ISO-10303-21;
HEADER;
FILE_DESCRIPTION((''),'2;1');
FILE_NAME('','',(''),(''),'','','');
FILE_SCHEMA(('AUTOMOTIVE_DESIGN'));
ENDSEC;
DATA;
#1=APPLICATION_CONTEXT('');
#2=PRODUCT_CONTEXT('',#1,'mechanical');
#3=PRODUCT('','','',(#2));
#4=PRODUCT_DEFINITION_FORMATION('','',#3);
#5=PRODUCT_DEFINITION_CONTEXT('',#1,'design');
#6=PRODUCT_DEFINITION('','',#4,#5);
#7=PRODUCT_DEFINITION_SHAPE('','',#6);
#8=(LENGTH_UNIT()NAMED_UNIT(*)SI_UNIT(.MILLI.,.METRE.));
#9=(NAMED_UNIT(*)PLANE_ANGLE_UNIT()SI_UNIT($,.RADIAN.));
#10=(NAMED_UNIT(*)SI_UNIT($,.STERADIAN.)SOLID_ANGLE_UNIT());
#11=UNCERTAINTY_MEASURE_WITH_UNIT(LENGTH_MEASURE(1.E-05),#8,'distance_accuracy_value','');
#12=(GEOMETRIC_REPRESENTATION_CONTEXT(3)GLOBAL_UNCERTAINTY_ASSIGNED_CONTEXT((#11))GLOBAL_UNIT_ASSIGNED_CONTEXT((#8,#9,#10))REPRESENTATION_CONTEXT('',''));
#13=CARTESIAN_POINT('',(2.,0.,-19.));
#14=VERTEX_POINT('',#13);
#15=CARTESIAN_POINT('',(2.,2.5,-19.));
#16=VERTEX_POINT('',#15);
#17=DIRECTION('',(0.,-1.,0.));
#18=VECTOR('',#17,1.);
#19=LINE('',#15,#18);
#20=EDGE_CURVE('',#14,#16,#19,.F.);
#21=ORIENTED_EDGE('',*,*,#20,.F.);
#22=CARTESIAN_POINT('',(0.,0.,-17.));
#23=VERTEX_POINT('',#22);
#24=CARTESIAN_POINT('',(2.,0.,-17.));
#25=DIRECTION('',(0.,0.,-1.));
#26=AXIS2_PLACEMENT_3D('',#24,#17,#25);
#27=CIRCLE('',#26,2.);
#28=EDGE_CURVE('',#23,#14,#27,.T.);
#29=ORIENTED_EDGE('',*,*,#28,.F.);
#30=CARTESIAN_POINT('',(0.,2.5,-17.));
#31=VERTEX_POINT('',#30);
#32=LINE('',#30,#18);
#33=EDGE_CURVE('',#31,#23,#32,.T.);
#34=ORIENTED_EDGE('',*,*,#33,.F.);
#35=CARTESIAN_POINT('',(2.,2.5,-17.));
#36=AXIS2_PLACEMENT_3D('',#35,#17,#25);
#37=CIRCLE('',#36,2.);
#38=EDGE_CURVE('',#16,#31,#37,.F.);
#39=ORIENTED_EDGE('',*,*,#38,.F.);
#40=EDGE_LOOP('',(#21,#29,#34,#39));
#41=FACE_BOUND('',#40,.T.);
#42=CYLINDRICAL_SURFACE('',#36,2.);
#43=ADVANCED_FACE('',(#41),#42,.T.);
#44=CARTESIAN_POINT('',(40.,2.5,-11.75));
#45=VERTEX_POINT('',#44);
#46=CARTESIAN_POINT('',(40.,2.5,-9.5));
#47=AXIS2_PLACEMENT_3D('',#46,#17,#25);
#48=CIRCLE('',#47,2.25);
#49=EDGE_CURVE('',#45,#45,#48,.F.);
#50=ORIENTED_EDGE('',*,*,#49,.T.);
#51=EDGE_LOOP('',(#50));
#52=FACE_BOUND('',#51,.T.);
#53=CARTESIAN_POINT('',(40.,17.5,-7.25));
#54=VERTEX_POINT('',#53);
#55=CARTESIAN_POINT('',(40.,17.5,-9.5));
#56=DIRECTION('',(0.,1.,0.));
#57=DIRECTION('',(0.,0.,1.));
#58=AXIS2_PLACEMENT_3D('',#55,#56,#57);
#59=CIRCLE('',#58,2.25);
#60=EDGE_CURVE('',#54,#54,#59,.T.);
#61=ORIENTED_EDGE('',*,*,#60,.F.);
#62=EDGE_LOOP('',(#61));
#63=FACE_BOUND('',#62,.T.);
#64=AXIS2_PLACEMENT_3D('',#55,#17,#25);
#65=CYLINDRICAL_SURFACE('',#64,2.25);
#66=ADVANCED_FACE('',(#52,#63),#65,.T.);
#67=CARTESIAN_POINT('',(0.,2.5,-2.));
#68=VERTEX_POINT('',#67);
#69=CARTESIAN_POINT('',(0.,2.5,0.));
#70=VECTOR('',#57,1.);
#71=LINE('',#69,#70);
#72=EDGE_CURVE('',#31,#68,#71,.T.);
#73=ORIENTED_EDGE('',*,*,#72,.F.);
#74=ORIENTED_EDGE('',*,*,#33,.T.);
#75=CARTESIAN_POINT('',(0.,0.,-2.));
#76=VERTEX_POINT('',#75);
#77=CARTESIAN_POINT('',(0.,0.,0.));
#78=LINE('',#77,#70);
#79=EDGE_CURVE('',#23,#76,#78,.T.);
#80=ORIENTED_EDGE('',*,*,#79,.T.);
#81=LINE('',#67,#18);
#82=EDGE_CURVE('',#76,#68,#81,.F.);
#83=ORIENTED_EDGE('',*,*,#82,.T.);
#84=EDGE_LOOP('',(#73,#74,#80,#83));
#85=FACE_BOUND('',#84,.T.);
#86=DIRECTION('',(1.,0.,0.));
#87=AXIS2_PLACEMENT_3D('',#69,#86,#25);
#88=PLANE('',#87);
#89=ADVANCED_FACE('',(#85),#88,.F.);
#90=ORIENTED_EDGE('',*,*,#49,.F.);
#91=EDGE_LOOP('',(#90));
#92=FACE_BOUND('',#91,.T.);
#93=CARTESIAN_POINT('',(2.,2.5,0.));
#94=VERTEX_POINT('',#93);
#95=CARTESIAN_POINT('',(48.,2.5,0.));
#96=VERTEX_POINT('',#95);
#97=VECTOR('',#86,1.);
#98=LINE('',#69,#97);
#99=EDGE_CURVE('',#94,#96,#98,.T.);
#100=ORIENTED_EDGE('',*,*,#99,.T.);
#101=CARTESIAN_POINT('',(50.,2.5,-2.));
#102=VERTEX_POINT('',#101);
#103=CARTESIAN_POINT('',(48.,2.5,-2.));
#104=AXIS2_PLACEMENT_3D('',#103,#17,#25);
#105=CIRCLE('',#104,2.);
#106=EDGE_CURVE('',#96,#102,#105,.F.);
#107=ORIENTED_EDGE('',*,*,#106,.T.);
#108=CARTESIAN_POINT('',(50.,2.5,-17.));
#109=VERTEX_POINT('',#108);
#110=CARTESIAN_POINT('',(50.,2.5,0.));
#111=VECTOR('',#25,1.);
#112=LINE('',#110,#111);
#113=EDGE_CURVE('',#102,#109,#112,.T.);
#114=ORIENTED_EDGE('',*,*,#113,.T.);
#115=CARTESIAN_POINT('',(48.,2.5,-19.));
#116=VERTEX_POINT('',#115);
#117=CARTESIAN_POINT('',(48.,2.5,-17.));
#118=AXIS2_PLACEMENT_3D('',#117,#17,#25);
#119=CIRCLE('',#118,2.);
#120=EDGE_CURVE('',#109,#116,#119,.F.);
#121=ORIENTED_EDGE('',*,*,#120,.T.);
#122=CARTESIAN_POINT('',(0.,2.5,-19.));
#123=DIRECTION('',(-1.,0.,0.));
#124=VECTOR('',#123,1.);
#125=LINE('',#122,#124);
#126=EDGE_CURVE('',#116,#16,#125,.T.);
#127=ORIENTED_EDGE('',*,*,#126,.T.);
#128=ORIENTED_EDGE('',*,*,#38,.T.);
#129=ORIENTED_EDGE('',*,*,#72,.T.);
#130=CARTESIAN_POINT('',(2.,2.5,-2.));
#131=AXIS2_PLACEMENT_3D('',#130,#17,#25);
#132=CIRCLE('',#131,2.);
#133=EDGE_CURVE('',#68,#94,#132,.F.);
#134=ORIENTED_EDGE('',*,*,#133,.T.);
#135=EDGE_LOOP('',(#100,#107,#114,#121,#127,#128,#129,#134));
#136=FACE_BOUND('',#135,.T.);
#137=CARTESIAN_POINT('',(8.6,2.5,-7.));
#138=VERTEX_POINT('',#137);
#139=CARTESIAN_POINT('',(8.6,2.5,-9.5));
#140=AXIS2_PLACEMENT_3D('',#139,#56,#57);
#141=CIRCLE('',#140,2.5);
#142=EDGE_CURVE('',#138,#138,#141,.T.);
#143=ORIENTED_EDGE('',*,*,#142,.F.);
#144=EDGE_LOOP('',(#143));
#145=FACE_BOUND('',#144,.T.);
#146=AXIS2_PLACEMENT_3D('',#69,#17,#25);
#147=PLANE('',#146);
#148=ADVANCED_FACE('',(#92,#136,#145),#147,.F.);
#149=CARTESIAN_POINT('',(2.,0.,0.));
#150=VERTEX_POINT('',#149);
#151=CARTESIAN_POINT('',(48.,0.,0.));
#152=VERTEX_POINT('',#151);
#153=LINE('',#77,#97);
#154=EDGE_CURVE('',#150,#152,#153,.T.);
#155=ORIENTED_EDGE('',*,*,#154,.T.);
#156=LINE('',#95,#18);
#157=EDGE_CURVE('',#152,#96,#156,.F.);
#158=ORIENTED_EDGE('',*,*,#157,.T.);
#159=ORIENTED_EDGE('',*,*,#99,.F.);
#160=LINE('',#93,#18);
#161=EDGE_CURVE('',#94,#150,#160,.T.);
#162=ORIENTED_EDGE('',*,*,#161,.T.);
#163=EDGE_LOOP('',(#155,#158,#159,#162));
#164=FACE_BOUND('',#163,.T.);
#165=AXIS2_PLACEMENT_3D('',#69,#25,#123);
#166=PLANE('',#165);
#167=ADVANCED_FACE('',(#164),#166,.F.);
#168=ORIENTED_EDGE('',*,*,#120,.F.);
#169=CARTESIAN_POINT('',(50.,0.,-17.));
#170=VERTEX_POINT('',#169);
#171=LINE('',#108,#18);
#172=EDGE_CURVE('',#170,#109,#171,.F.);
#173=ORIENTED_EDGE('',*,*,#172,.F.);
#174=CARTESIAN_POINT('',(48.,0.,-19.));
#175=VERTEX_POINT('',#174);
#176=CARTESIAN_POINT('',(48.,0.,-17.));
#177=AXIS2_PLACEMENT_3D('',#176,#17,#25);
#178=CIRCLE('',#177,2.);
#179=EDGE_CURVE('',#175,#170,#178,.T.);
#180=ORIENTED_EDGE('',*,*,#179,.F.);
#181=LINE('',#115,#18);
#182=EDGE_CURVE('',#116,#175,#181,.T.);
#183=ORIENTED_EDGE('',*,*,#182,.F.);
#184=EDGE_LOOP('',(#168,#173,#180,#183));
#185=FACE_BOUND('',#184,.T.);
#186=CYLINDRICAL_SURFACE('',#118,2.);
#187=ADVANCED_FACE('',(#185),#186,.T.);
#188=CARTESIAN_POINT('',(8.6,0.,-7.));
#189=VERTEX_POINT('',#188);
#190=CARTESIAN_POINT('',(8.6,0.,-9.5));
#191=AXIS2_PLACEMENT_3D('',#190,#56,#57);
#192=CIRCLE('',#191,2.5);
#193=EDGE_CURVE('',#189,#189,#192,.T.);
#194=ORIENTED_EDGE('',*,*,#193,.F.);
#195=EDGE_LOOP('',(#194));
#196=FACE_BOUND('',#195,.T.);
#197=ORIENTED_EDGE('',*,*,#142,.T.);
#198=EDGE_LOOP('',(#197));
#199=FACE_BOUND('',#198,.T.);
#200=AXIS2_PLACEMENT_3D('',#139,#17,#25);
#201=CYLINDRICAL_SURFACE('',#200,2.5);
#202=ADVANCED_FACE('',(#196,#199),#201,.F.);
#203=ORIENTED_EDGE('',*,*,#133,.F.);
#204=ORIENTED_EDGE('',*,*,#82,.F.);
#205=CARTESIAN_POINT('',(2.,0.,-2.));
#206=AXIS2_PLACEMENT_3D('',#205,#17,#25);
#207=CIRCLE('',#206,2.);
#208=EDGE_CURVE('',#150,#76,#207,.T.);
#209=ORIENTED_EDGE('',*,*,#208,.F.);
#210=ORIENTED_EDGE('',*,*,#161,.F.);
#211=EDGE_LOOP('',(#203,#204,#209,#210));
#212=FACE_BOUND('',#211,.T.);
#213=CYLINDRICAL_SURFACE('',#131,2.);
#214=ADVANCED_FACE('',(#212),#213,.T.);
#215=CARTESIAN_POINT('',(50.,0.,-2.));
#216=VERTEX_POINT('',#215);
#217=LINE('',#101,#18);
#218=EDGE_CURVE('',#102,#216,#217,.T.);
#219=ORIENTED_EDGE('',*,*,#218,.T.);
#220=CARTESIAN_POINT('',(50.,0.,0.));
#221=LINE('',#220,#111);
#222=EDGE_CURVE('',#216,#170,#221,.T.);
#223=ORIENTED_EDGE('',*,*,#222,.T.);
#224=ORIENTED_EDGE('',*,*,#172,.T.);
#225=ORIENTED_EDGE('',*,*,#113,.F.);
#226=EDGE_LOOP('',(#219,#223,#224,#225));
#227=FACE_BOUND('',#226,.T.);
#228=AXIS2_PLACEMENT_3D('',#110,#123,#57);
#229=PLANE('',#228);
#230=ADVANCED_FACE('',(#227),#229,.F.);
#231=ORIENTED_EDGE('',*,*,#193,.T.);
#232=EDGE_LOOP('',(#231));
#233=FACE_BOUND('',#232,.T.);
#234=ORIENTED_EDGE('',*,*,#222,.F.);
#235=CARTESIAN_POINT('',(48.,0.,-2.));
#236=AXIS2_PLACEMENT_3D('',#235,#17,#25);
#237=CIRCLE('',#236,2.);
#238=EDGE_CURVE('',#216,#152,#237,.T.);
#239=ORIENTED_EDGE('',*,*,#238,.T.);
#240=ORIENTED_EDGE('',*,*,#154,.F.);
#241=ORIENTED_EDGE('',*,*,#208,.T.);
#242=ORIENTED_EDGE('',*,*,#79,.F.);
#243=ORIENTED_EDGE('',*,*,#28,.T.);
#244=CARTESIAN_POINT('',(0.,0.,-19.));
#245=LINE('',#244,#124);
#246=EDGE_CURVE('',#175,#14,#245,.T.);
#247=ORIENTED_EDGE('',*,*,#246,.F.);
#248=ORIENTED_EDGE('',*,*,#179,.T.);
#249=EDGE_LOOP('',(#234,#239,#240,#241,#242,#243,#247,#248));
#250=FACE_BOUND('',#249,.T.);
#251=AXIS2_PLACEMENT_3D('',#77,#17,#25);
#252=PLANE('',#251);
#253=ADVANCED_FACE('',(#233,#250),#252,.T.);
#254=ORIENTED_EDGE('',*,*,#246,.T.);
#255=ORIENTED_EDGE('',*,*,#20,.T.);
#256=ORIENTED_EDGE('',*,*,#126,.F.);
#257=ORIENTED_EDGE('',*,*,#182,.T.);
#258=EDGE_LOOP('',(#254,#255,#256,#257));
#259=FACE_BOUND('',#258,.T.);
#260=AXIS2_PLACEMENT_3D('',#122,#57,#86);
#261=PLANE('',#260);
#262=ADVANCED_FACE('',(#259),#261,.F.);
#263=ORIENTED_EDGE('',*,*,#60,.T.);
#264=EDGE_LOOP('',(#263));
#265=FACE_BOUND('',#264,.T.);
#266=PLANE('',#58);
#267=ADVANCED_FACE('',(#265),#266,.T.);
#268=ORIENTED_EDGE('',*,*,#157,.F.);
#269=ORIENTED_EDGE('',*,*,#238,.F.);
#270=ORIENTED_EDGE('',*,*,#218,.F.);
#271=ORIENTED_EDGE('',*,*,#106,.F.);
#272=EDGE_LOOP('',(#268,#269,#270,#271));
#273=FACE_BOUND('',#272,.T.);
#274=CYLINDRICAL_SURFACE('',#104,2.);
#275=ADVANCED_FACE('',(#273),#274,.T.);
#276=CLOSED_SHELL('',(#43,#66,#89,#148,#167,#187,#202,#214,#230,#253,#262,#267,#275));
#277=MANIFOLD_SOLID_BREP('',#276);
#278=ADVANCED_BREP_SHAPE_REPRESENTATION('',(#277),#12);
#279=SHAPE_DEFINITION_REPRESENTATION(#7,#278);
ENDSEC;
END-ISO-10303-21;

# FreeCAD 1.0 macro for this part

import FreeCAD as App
import Part
import Sketcher


def edges_at(feature, points):
    """Names of the edges that pass closest to the given points."""
    edges = feature.Shape.Edges
    near = lambda p: min(range(len(edges)), key=lambda i: edges[i].distToShape(Part.Vertex(*p))[0])
    return sorted({f"Edge{near(p) + 1}" for p in points})


def add_polygon(sketch, points):
    """Adds a closed chain of lines whose ends are joined by coincident constraints."""
    first, n = sketch.GeometryCount, len(points)
    for a, b in zip(points, points[1:] + points[:1]):
        sketch.addGeometry(Part.LineSegment(App.Vector(*a, 0), App.Vector(*b, 0)), False)
    for i in range(n):
        sketch.addConstraint(Sketcher.Constraint("Coincident", first + i, 2, first + (i + 1) % n, 1))

doc = App.newDocument("Part")
params = doc.addObject("Spreadsheet::Sheet", "Params")
for row, (alias, value) in enumerate([
    ("sketch1_diameter", "5 mm"),
    ("sketch1_width", "50 mm"),
    ("sketch1_height", "19 mm"),
    ("pad1_length", "2.5 mm"),
    ("sketch2_diameter", "4.5 mm"),
    ("pad2_length", "15 mm"),
    ("fillet_radius", "2 mm"),
], start=1):
    params.set(f"A{row}", alias)
    params.set(f"B{row}", "=" + value)
    params.setAlias(f"B{row}", alias)

body = doc.addObject("PartDesign::Body", "Body")

sketch1 = body.newObject("Sketcher::SketchObject", "Sketch")
sketch1.AttachmentSupport = (doc.getObject("XZ_Plane"), [""])
sketch1.MapMode = "FlatFace"
add_polygon(sketch1, [(0, -19), (0, 0), (50, 0), (50, -19)])
sketch1.addGeometry(Part.Circle(App.Vector(8.6, -9.5, 0), App.Vector(0, 0, 1), 2.5), False)
sketch1.addConstraint([
    Sketcher.Constraint("Vertical", 0),
    Sketcher.Constraint("Horizontal", 1),
    Sketcher.Constraint("Vertical", 2),
    Sketcher.Constraint("Horizontal", 3),
    Sketcher.Constraint("Coincident", 0, 2, -1, 1),
    Sketcher.Constraint("Diameter", 4, 5.0),
    Sketcher.Constraint("DistanceX", 1, 1, 1, 2, 50.0),
    Sketcher.Constraint("DistanceY", 0, 1, 0, 2, 19.0),
    Sketcher.Constraint("DistanceX", -1, 1, 4, 3, 8.6),
    Sketcher.Constraint("DistanceY", 4, 3, -1, 1, 9.5),
])
sketch1.setExpression("Constraints[9]", "Params.sketch1_diameter")
sketch1.setExpression("Constraints[10]", "Params.sketch1_width")
sketch1.setExpression("Constraints[11]", "Params.sketch1_height")
pad1 = body.newObject("PartDesign::Pad", "Pad")
pad1.Profile = sketch1
pad1.setExpression("Length", "Params.pad1_length")
pad1.Reversed = True

sketch2 = body.newObject("Sketcher::SketchObject", "Sketch001")
sketch2.AttachmentSupport = (doc.getObject("XZ_Plane"), [""])
sketch2.MapMode = "FlatFace"
sketch2.AttachmentOffset = App.Placement(App.Vector(0, 0, -2.5), App.Rotation())
sketch2.addGeometry(Part.Circle(App.Vector(40, -9.5, 0), App.Vector(0, 0, 1), 2.25), False)
sketch2.addConstraint([
    Sketcher.Constraint("Diameter", 0, 4.5),
    Sketcher.Constraint("DistanceX", -1, 1, 0, 3, 40.0),
    Sketcher.Constraint("DistanceY", 0, 3, -1, 1, 9.5),
])
sketch2.setExpression("Constraints[0]", "Params.sketch2_diameter")
pad2 = body.newObject("PartDesign::Pad", "Pad001")
pad2.Profile = sketch2
pad2.setExpression("Length", "Params.pad2_length")
pad2.Reversed = True
doc.recompute()

fillet = body.newObject("PartDesign::Fillet", "Fillet")
fillet.Base = (pad2, edges_at(pad2, [
    (0, 1.25, -19),
    (50, 1.25, -19),
    (50, 1.25, 0),
    (0, 1.25, 0),
]))
fillet.setExpression("Radius", "Params.fillet_radius")

doc.recompute()
